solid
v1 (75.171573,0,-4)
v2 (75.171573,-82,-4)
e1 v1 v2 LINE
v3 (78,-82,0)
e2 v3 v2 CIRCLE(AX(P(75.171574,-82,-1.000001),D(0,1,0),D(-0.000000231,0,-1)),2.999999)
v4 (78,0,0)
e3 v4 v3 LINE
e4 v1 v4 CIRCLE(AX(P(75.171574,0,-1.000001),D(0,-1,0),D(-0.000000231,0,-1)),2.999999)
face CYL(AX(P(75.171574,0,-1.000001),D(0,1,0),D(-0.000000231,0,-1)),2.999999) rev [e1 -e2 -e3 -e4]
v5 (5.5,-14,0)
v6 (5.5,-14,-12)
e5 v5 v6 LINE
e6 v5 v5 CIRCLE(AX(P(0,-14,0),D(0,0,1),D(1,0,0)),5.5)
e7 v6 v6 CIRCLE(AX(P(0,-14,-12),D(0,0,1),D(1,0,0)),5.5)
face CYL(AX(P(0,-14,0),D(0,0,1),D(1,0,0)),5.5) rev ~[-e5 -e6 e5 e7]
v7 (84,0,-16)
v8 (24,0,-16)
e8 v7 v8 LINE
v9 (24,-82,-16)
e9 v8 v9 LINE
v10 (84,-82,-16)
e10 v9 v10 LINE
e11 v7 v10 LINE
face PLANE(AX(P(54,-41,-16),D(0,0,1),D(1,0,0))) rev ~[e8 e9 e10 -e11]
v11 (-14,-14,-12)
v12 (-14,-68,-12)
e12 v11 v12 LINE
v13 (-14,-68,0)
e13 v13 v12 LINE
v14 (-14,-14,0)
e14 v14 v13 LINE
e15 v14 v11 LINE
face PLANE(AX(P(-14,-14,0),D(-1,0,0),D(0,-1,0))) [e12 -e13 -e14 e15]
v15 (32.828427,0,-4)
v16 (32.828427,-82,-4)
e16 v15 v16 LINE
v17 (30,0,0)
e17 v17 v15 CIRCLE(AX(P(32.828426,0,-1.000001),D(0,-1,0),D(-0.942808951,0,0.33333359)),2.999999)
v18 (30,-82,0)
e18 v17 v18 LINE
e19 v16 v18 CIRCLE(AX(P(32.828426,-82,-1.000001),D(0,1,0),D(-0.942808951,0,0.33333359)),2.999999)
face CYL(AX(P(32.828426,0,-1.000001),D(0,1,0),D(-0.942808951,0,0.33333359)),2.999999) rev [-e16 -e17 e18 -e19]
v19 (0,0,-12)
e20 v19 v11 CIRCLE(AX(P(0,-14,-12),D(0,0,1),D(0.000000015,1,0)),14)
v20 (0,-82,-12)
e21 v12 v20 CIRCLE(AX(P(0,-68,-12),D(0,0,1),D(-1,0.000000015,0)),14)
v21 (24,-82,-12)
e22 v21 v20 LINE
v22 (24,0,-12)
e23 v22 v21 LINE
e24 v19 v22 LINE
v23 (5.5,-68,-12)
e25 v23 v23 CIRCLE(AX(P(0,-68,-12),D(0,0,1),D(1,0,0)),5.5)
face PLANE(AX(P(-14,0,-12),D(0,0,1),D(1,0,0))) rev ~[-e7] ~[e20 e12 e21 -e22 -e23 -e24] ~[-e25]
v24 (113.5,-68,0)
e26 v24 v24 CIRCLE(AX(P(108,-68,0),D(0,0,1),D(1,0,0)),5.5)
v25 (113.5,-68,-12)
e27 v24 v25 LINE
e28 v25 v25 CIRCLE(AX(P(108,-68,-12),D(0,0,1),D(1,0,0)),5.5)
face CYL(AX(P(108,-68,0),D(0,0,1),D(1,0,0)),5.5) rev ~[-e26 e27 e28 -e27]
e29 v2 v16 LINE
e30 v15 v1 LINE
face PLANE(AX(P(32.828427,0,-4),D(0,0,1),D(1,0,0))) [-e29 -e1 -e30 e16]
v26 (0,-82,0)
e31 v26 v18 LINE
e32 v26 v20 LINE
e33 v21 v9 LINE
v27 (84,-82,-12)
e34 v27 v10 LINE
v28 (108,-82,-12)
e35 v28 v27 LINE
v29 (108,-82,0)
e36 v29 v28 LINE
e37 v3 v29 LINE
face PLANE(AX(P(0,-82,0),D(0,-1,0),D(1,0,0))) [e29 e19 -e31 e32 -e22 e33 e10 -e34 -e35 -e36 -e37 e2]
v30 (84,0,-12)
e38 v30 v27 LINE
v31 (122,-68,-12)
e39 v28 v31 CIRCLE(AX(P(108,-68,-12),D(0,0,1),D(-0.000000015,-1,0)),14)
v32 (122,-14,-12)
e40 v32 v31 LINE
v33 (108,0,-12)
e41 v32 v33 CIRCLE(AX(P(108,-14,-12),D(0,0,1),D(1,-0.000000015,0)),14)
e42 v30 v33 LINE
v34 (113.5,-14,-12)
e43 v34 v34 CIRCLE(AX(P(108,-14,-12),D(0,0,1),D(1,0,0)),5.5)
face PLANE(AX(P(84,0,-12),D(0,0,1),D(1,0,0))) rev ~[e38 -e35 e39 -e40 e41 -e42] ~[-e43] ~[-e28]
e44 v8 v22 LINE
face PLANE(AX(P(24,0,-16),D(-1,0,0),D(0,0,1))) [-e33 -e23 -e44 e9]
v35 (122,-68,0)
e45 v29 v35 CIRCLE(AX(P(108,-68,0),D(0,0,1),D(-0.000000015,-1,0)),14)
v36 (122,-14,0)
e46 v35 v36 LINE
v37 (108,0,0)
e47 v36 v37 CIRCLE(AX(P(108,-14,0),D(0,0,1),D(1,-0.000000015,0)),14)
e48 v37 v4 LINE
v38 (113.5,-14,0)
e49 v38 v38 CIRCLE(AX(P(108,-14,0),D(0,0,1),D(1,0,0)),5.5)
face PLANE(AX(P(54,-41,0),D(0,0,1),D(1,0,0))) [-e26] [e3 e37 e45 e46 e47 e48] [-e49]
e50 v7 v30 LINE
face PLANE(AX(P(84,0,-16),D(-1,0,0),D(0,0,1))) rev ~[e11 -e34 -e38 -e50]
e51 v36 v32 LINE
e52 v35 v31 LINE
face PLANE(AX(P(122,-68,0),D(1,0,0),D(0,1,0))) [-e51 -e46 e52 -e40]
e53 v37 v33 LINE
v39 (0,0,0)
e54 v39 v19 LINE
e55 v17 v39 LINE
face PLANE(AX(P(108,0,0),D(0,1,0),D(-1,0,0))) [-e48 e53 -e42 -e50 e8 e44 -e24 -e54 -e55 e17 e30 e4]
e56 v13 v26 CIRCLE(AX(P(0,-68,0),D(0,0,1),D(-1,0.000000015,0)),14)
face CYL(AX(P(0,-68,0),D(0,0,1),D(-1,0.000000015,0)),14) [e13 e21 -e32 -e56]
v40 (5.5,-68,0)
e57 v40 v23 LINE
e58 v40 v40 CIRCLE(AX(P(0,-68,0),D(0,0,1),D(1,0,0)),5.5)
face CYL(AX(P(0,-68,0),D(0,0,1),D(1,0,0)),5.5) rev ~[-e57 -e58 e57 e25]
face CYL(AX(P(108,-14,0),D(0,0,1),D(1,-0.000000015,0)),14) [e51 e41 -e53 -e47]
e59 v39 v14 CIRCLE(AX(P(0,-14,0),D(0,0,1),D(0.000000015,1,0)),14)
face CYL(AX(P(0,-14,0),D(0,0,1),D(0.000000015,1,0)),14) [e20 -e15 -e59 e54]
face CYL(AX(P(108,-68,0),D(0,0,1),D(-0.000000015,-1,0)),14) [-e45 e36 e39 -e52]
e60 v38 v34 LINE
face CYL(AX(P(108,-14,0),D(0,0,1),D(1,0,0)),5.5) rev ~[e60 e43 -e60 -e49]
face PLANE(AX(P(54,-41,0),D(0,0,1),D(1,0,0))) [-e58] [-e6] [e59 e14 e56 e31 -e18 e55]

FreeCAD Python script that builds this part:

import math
import FreeCAD as App
import Part
import Sketcher
from FreeCAD import Vector

doc = App.newDocument("Part")
body = doc.addObject("PartDesign::Body", "Body")

# Sketch on XY plane
sketch1 = body.newObject("Sketcher::SketchObject", "Sketch")
sketch1.AttachmentSupport = (doc.getObject("XY_Plane"), [""])
sketch1.MapMode = "FlatFace"
sketch1.addGeometry(Part.LineSegment(Vector(108, 0, 0), Vector(0, 0, 0)), False)
sketch1.addGeometry(Part.ArcOfCircle(Part.Circle(Vector(0, -14, 0), Vector(0, 0, 1), 14), math.radians(90), math.radians(180)), False)
sketch1.addGeometry(Part.LineSegment(Vector(-14, -14, 0), Vector(-14, -68, 0)), False)
sketch1.addGeometry(Part.ArcOfCircle(Part.Circle(Vector(0, -68, 0), Vector(0, 0, 1), 14), math.radians(180), math.radians(270)), False)
sketch1.addGeometry(Part.LineSegment(Vector(0, -82, 0), Vector(108, -82, 0)), False)
sketch1.addGeometry(Part.ArcOfCircle(Part.Circle(Vector(108, -68, 0), Vector(0, 0, 1), 14), math.radians(-90), math.radians(0)), False)
sketch1.addGeometry(Part.LineSegment(Vector(122, -68, 0), Vector(122, -14, 0)), False)
sketch1.addGeometry(Part.ArcOfCircle(Part.Circle(Vector(108, -14, 0), Vector(0, 0, 1), 14), math.radians(0), math.radians(90)), False)
sketch1.addGeometry(Part.Circle(Vector(0, -68, 0), Vector(0, 0, 1), 6), False)
sketch1.addGeometry(Part.Circle(Vector(108, -68, 0), Vector(0, 0, 1), 6), False)
sketch1.addGeometry(Part.Circle(Vector(0, -14, 0), Vector(0, 0, 1), 6), False)
sketch1.addGeometry(Part.Circle(Vector(108, -14, 0), Vector(0, 0, 1), 6), False)
sketch1.addConstraint(Sketcher.Constraint("Tangent", 0, 2, 1, 1))
sketch1.addConstraint(Sketcher.Constraint("Tangent", 1, 2, 2, 1))
sketch1.addConstraint(Sketcher.Constraint("Tangent", 2, 2, 3, 1))
sketch1.addConstraint(Sketcher.Constraint("Tangent", 3, 2, 4, 1))
sketch1.addConstraint(Sketcher.Constraint("Tangent", 4, 2, 5, 1))
sketch1.addConstraint(Sketcher.Constraint("Tangent", 5, 2, 6, 1))
sketch1.addConstraint(Sketcher.Constraint("Tangent", 6, 2, 7, 1))
sketch1.addConstraint(Sketcher.Constraint("Tangent", 7, 2, 0, 1))
sketch1.addConstraint(Sketcher.Constraint("Horizontal", 0))
sketch1.addConstraint(Sketcher.Constraint("Vertical", 2))
sketch1.addConstraint(Sketcher.Constraint("Horizontal", 4))
sketch1.addConstraint(Sketcher.Constraint("Vertical", 6))
sketch1.addConstraint(Sketcher.Constraint("Coincident", 0, 2, -1, 1))
sketch1.addConstraint(Sketcher.Constraint("Coincident", 8, 3, 3, 3))
sketch1.addConstraint(Sketcher.Constraint("Coincident", 9, 3, 5, 3))
sketch1.addConstraint(Sketcher.Constraint("Coincident", 10, 3, 1, 3))
sketch1.addConstraint(Sketcher.Constraint("Coincident", 11, 3, 7, 3))
sketch1.addConstraint(Sketcher.Constraint("Equal", 1, 3))
sketch1.addConstraint(Sketcher.Constraint("Equal", 3, 5))
sketch1.addConstraint(Sketcher.Constraint("Equal", 5, 7))
sketch1.addConstraint(Sketcher.Constraint("Equal", 8, 9))
sketch1.addConstraint(Sketcher.Constraint("Equal", 9, 10))
sketch1.addConstraint(Sketcher.Constraint("Equal", 10, 11))
sketch1.addConstraint(Sketcher.Constraint("Diameter", 8, 11.0))
sketch1.addConstraint(Sketcher.Constraint("Radius", 1, 14.0))
sketch1.addConstraint(Sketcher.Constraint("DistanceX", 0, 2, 0, 1, 108.0))
sketch1.addConstraint(Sketcher.Constraint("DistanceY", 2, 2, 2, 1, 54.0))
pad1 = body.newObject("PartDesign::Pad", "Pad")
pad1.Profile = sketch1
pad1.Length = 16
pad1.Reversed = True

# Sketch on XZ plane
sketch2 = body.newObject("Sketcher::SketchObject", "Sketch001")
sketch2.AttachmentSupport = (doc.getObject("XZ_Plane"), [""])
sketch2.MapMode = "FlatFace"
sketch2.addGeometry(Part.ArcOfCircle(Part.Circle(Vector(32.8, -1, 0), Vector(0, 0, 1), 3), math.radians(161), math.radians(270)), False)
sketch2.addGeometry(Part.LineSegment(Vector(32.8, -4, 0), Vector(75.2, -4, 0)), False)
sketch2.addGeometry(Part.ArcOfCircle(Part.Circle(Vector(75.2, -1, 0), Vector(0, 0, 1), 3), math.radians(-90), math.radians(19)), False)
sketch2.addGeometry(Part.LineSegment(Vector(78, 0, 0), Vector(30, 0, 0)), False)
sketch2.addGeometry(Part.LineSegment(Vector(-14, -12, 0), Vector(-14, -16, 0)), False)
sketch2.addGeometry(Part.LineSegment(Vector(-14, -16, 0), Vector(24, -16, 0)), False)
sketch2.addGeometry(Part.LineSegment(Vector(24, -16, 0), Vector(24, -12, 0)), False)
sketch2.addGeometry(Part.LineSegment(Vector(24, -12, 0), Vector(-14, -12, 0)), False)
sketch2.addGeometry(Part.LineSegment(Vector(84, -12, 0), Vector(84, -16, 0)), False)
sketch2.addGeometry(Part.LineSegment(Vector(84, -16, 0), Vector(122, -16, 0)), False)
sketch2.addGeometry(Part.LineSegment(Vector(122, -16, 0), Vector(122, -12, 0)), False)
sketch2.addGeometry(Part.LineSegment(Vector(122, -12, 0), Vector(84, -12, 0)), False)
sketch2.addConstraint(Sketcher.Constraint("Tangent", 0, 2, 1, 1))
sketch2.addConstraint(Sketcher.Constraint("Tangent", 1, 2, 2, 1))
sketch2.addConstraint(Sketcher.Constraint("Coincident", 2, 2, 3, 1))
sketch2.addConstraint(Sketcher.Constraint("Coincident", 3, 2, 0, 1))
sketch2.addConstraint(Sketcher.Constraint("Coincident", 4, 2, 5, 1))
sketch2.addConstraint(Sketcher.Constraint("Coincident", 5, 2, 6, 1))
sketch2.addConstraint(Sketcher.Constraint("Coincident", 6, 2, 7, 1))
sketch2.addConstraint(Sketcher.Constraint("Coincident", 7, 2, 4, 1))
sketch2.addConstraint(Sketcher.Constraint("Coincident", 8, 2, 9, 1))
sketch2.addConstraint(Sketcher.Constraint("Coincident", 9, 2, 10, 1))
sketch2.addConstraint(Sketcher.Constraint("Coincident", 10, 2, 11, 1))
sketch2.addConstraint(Sketcher.Constraint("Coincident", 11, 2, 8, 1))
sketch2.addConstraint(Sketcher.Constraint("Horizontal", 1))
sketch2.addConstraint(Sketcher.Constraint("Horizontal", 3))
sketch2.addConstraint(Sketcher.Constraint("Vertical", 4))
sketch2.addConstraint(Sketcher.Constraint("Horizontal", 5))
sketch2.addConstraint(Sketcher.Constraint("Vertical", 6))
sketch2.addConstraint(Sketcher.Constraint("Horizontal", 7))
sketch2.addConstraint(Sketcher.Constraint("Vertical", 8))
sketch2.addConstraint(Sketcher.Constraint("Horizontal", 9))
sketch2.addConstraint(Sketcher.Constraint("Vertical", 10))
sketch2.addConstraint(Sketcher.Constraint("Horizontal", 11))
sketch2.addConstraint(Sketcher.Constraint("Equal", 0, 2))
sketch2.addConstraint(Sketcher.Constraint("PointOnObject", 2, 2, -1))
sketch2.addConstraint(Sketcher.Constraint("Horizontal", 5, 2, 8, 2))
sketch2.addConstraint(Sketcher.Constraint("Horizontal", 7, 2, 10, 2))
sketch2.addConstraint(Sketcher.Constraint("Equal", 7, 9))
sketch2.addConstraint(Sketcher.Constraint("Radius", 0, 2.999999))
sketch2.addConstraint(Sketcher.Constraint("DistanceX", 3, 2, 3, 1, 48.0))
sketch2.addConstraint(Sketcher.Constraint("DistanceX", 5, 1, 5, 2, 38.0))
sketch2.addConstraint(Sketcher.Constraint("DistanceY", 4, 2, 4, 1, 4.0))
sketch2.addConstraint(Sketcher.Constraint("DistanceY", 0, 3, -1, 1, 1.000001))
sketch2.addConstraint(Sketcher.Constraint("DistanceX", -1, 1, 2, 2, 78.0))
sketch2.addConstraint(Sketcher.Constraint("DistanceX", 4, 2, -1, 1, 14.0))
sketch2.addConstraint(Sketcher.Constraint("DistanceY", 4, 2, -1, 1, 16.0))
sketch2.addConstraint(Sketcher.Constraint("DistanceX", -1, 1, 8, 2, 84.0))
pocket1 = body.newObject("PartDesign::Pocket", "Pocket")
pocket1.Profile = sketch2
pocket1.Type = "ThroughAll"
pocket1.Reversed = True

doc.recompute()
